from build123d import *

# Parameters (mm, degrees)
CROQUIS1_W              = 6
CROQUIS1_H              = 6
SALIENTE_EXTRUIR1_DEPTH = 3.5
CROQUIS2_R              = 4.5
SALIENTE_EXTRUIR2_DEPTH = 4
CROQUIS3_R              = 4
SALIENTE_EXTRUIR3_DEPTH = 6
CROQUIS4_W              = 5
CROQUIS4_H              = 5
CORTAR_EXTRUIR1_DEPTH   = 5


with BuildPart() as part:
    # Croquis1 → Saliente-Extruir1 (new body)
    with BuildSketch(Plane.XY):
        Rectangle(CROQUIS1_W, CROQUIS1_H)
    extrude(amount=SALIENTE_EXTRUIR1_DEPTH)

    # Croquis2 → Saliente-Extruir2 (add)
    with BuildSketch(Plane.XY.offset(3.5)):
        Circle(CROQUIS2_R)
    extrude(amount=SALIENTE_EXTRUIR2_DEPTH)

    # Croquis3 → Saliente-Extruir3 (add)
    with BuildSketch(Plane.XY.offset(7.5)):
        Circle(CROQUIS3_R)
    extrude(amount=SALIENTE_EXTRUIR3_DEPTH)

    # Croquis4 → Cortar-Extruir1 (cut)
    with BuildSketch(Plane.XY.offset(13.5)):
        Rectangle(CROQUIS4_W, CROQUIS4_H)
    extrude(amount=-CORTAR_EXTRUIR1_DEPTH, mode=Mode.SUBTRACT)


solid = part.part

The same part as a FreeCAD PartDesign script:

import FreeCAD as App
import Part
import Sketcher

doc = App.newDocument("Part")
body = doc.addObject("PartDesign::Body", "Body")

# Sketch on XY plane
sketch1 = body.newObject("Sketcher::SketchObject", "Sketch")
sketch1.AttachmentSupport = (doc.getObject("XY_Plane"), [""])
sketch1.MapMode = "FlatFace"
sketch1.addGeometry(Part.LineSegment(App.Vector(-3, 3, 0), App.Vector(-3, -3, 0)), False)
sketch1.addGeometry(Part.LineSegment(App.Vector(-3, -3, 0), App.Vector(3, -3, 0)), False)
sketch1.addGeometry(Part.LineSegment(App.Vector(3, -3, 0), App.Vector(3, 3, 0)), False)
sketch1.addGeometry(Part.LineSegment(App.Vector(3, 3, 0), App.Vector(-3, 3, 0)), False)
sketch1.addConstraint(Sketcher.Constraint("Coincident", 0, 2, 1, 1))
sketch1.addConstraint(Sketcher.Constraint("Coincident", 1, 2, 2, 1))
sketch1.addConstraint(Sketcher.Constraint("Coincident", 2, 2, 3, 1))
sketch1.addConstraint(Sketcher.Constraint("Coincident", 3, 2, 0, 1))
sketch1.addConstraint(Sketcher.Constraint("Vertical", 0))
sketch1.addConstraint(Sketcher.Constraint("Horizontal", 1))
sketch1.addConstraint(Sketcher.Constraint("Vertical", 2))
sketch1.addConstraint(Sketcher.Constraint("Horizontal", 3))
sketch1.addConstraint(Sketcher.Constraint("Symmetric", 0, 2, 2, 2, -1, 1))
sketch1.addConstraint(Sketcher.Constraint("Equal", 3, 0))
sketch1.addConstraint(Sketcher.Constraint("DistanceX", 1, 1, 1, 2, 6.0))
pad1 = body.newObject("PartDesign::Pad", "Pad")
pad1.Profile = sketch1
pad1.Length = 3.5

# Sketch on XY plane
sketch2 = body.newObject("Sketcher::SketchObject", "Sketch001")
sketch2.AttachmentSupport = (doc.getObject("XY_Plane"), [""])
sketch2.MapMode = "FlatFace"
sketch2.AttachmentOffset = App.Placement(App.Vector(0, 0, 3.5), App.Rotation())
sketch2.addGeometry(Part.Circle(App.Vector(0, 0, 0), App.Vector(0, 0, 1), 4.5), False)
sketch2.addConstraint(Sketcher.Constraint("Coincident", 0, 3, -1, 1))
sketch2.addConstraint(Sketcher.Constraint("Diameter", 0, 9.0))
pad2 = body.newObject("PartDesign::Pad", "Pad001")
pad2.Profile = sketch2
pad2.Length = 4

# Sketch on XY plane
sketch3 = body.newObject("Sketcher::SketchObject", "Sketch002")
sketch3.AttachmentSupport = (doc.getObject("XY_Plane"), [""])
sketch3.MapMode = "FlatFace"
sketch3.AttachmentOffset = App.Placement(App.Vector(0, 0, 7.5), App.Rotation())
sketch3.addGeometry(Part.Circle(App.Vector(0, 0, 0), App.Vector(0, 0, 1), 4), False)
sketch3.addConstraint(Sketcher.Constraint("Coincident", 0, 3, -1, 1))
sketch3.addConstraint(Sketcher.Constraint("Diameter", 0, 8.0))
pad3 = body.newObject("PartDesign::Pad", "Pad002")
pad3.Profile = sketch3
pad3.Length = 6

# Sketch on XY plane
sketch4 = body.newObject("Sketcher::SketchObject", "Sketch003")
sketch4.AttachmentSupport = (doc.getObject("XY_Plane"), [""])
sketch4.MapMode = "FlatFace"
sketch4.AttachmentOffset = App.Placement(App.Vector(0, 0, 13.5), App.Rotation())
sketch4.addGeometry(Part.LineSegment(App.Vector(-2, 2, 0), App.Vector(-2, -2, 0)), False)
sketch4.addGeometry(Part.LineSegment(App.Vector(-2, -2, 0), App.Vector(2, -2, 0)), False)
sketch4.addGeometry(Part.LineSegment(App.Vector(2, -2, 0), App.Vector(2, 2, 0)), False)
sketch4.addGeometry(Part.LineSegment(App.Vector(2, 2, 0), App.Vector(-2, 2, 0)), False)
sketch4.addConstraint(Sketcher.Constraint("Coincident", 0, 2, 1, 1))
sketch4.addConstraint(Sketcher.Constraint("Coincident", 1, 2, 2, 1))
sketch4.addConstraint(Sketcher.Constraint("Coincident", 2, 2, 3, 1))
sketch4.addConstraint(Sketcher.Constraint("Coincident", 3, 2, 0, 1))
sketch4.addConstraint(Sketcher.Constraint("Vertical", 0))
sketch4.addConstraint(Sketcher.Constraint("Horizontal", 1))
sketch4.addConstraint(Sketcher.Constraint("Vertical", 2))
sketch4.addConstraint(Sketcher.Constraint("Horizontal", 3))
sketch4.addConstraint(Sketcher.Constraint("Symmetric", 0, 2, 2, 2, -1, 1))
sketch4.addConstraint(Sketcher.Constraint("Equal", 3, 0))
sketch4.addConstraint(Sketcher.Constraint("DistanceX", 1, 1, 1, 2, 5.0))
pocket1 = body.newObject("PartDesign::Pocket", "Pocket")
pocket1.Profile = sketch4
pocket1.Length = 5

doc.recompute()
